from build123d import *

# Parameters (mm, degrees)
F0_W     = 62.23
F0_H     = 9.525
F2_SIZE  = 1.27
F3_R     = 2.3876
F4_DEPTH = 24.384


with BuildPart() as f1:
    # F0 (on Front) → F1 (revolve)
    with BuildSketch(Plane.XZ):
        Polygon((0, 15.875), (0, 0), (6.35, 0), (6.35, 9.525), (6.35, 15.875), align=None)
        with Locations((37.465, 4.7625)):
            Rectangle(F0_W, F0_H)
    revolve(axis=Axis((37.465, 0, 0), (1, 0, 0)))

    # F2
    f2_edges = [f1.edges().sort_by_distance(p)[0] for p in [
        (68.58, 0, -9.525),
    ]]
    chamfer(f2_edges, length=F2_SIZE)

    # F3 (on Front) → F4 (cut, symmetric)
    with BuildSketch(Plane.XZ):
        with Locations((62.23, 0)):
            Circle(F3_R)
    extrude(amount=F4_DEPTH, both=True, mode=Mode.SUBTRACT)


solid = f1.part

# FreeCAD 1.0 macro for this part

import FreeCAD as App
import Part
import Sketcher
from FreeCAD import Vector
Q = App.Units.Quantity


def edges_at(feature, points):
    """Names of the edges that pass closest to the given points."""
    edges = feature.Shape.Edges
    near = lambda p: min(range(len(edges)), key=lambda i: edges[i].distToShape(Part.Vertex(*p))[0])
    return sorted({f"Edge{near(p) + 1}" for p in points})


def add_polygon(sketch, points):
    """Adds a closed chain of lines whose ends are joined by coincident constraints."""
    first, n = sketch.GeometryCount, len(points)
    for a, b in zip(points, points[1:] + points[:1]):
        sketch.addGeometry(Part.LineSegment(App.Vector(*a, 0), App.Vector(*b, 0)), False)
    for i in range(n):
        sketch.addConstraint(Sketcher.Constraint("Coincident", first + i, 2, first + (i + 1) % n, 1))

doc = App.newDocument("Part")
params = doc.addObject("Spreadsheet::Sheet", "Params")
for row, (alias, value) in enumerate([
    ("sketch1_width", "2.7 in"),
    ("sketch1_width2", "2.45 in"),
    ("sketch1_height", "0.625 in"),
    ("revolution_angle", "360 deg"),
    ("chamfer_size", "0.05 in"),
    ("sketch2_diameter", "0.188 in"),
    ("pocket1_length", "1.92 in"),
], start=1):
    params.set(f"A{row}", alias)
    params.set(f"B{row}", "=" + value)
    params.setAlias(f"B{row}", alias)

body = doc.addObject("PartDesign::Body", "Body")

# Sketch on XZ plane
sketch1 = body.newObject("Sketcher::SketchObject", "Sketch")
sketch1.AttachmentSupport = (doc.getObject("XZ_Plane"), [""])
sketch1.MapMode = "FlatFace"
add_polygon(sketch1, [(0, 15.875), (0, 0), (68.58, 0), (68.58, 9.525), (6.35, 9.525), (6.35, 15.875)])  # lines 0-5
sketch1.addConstraint(Sketcher.Constraint("Vertical", 0))
sketch1.addConstraint(Sketcher.Constraint("Horizontal", 1))
sketch1.addConstraint(Sketcher.Constraint("Vertical", 2))
sketch1.addConstraint(Sketcher.Constraint("Horizontal", 3))
sketch1.addConstraint(Sketcher.Constraint("Vertical", 4))
sketch1.addConstraint(Sketcher.Constraint("Horizontal", 5))
sketch1.addConstraint(Sketcher.Constraint("Coincident", 0, 2, -1, 1))
sketch1.addConstraint(Sketcher.Constraint("Equal", 5, 4))
sketch1.addConstraint(Sketcher.Constraint("DistanceX", 1, 1, 1, 2, Q("2.7 in")))
sketch1.addConstraint(Sketcher.Constraint("DistanceX", 3, 2, 3, 1, Q("2.45 in")))
sketch1.addConstraint(Sketcher.Constraint("DistanceY", 0, 2, 0, 1, Q("0.625 in")))
sketch1.setExpression("Constraints[14]", "Params.sketch1_width")
sketch1.setExpression("Constraints[15]", "Params.sketch1_width2")
sketch1.setExpression("Constraints[16]", "Params.sketch1_height")
revolution = body.newObject("PartDesign::Revolution", "Revolution")
revolution.Profile = sketch1
revolution.ReferenceAxis = (sketch1, ["H_Axis"])
revolution.setExpression("Angle", "Params.revolution_angle")
doc.recompute()

chamfer = body.newObject("PartDesign::Chamfer", "Chamfer")
chamfer.Base = (revolution, edges_at(revolution, [(68.58, 0, -9.525)]))
chamfer.setExpression("Size", "Params.chamfer_size")

# Sketch on XZ plane
sketch2 = body.newObject("Sketcher::SketchObject", "Sketch001")
sketch2.AttachmentSupport = (doc.getObject("XZ_Plane"), [""])
sketch2.MapMode = "FlatFace"
sketch2.addGeometry(Part.Circle(Vector(62.23, 0, 0), Vector(0, 0, 1), 2.3876), False)
sketch2.addConstraint(Sketcher.Constraint("PointOnObject", 0, 3, -1))
sketch2.addConstraint(Sketcher.Constraint("Diameter", 0, Q("0.188 in")))
sketch2.addConstraint(Sketcher.Constraint("DistanceX", -1, 1, 0, 3, Q("2.45 in")))
sketch2.setExpression("Constraints[1]", "Params.sketch2_diameter")
pocket1 = body.newObject("PartDesign::Pocket", "Pocket")
pocket1.Profile = sketch2
pocket1.setExpression("Length", "Params.pocket1_length")
pocket1.Midplane = True

doc.recompute()
